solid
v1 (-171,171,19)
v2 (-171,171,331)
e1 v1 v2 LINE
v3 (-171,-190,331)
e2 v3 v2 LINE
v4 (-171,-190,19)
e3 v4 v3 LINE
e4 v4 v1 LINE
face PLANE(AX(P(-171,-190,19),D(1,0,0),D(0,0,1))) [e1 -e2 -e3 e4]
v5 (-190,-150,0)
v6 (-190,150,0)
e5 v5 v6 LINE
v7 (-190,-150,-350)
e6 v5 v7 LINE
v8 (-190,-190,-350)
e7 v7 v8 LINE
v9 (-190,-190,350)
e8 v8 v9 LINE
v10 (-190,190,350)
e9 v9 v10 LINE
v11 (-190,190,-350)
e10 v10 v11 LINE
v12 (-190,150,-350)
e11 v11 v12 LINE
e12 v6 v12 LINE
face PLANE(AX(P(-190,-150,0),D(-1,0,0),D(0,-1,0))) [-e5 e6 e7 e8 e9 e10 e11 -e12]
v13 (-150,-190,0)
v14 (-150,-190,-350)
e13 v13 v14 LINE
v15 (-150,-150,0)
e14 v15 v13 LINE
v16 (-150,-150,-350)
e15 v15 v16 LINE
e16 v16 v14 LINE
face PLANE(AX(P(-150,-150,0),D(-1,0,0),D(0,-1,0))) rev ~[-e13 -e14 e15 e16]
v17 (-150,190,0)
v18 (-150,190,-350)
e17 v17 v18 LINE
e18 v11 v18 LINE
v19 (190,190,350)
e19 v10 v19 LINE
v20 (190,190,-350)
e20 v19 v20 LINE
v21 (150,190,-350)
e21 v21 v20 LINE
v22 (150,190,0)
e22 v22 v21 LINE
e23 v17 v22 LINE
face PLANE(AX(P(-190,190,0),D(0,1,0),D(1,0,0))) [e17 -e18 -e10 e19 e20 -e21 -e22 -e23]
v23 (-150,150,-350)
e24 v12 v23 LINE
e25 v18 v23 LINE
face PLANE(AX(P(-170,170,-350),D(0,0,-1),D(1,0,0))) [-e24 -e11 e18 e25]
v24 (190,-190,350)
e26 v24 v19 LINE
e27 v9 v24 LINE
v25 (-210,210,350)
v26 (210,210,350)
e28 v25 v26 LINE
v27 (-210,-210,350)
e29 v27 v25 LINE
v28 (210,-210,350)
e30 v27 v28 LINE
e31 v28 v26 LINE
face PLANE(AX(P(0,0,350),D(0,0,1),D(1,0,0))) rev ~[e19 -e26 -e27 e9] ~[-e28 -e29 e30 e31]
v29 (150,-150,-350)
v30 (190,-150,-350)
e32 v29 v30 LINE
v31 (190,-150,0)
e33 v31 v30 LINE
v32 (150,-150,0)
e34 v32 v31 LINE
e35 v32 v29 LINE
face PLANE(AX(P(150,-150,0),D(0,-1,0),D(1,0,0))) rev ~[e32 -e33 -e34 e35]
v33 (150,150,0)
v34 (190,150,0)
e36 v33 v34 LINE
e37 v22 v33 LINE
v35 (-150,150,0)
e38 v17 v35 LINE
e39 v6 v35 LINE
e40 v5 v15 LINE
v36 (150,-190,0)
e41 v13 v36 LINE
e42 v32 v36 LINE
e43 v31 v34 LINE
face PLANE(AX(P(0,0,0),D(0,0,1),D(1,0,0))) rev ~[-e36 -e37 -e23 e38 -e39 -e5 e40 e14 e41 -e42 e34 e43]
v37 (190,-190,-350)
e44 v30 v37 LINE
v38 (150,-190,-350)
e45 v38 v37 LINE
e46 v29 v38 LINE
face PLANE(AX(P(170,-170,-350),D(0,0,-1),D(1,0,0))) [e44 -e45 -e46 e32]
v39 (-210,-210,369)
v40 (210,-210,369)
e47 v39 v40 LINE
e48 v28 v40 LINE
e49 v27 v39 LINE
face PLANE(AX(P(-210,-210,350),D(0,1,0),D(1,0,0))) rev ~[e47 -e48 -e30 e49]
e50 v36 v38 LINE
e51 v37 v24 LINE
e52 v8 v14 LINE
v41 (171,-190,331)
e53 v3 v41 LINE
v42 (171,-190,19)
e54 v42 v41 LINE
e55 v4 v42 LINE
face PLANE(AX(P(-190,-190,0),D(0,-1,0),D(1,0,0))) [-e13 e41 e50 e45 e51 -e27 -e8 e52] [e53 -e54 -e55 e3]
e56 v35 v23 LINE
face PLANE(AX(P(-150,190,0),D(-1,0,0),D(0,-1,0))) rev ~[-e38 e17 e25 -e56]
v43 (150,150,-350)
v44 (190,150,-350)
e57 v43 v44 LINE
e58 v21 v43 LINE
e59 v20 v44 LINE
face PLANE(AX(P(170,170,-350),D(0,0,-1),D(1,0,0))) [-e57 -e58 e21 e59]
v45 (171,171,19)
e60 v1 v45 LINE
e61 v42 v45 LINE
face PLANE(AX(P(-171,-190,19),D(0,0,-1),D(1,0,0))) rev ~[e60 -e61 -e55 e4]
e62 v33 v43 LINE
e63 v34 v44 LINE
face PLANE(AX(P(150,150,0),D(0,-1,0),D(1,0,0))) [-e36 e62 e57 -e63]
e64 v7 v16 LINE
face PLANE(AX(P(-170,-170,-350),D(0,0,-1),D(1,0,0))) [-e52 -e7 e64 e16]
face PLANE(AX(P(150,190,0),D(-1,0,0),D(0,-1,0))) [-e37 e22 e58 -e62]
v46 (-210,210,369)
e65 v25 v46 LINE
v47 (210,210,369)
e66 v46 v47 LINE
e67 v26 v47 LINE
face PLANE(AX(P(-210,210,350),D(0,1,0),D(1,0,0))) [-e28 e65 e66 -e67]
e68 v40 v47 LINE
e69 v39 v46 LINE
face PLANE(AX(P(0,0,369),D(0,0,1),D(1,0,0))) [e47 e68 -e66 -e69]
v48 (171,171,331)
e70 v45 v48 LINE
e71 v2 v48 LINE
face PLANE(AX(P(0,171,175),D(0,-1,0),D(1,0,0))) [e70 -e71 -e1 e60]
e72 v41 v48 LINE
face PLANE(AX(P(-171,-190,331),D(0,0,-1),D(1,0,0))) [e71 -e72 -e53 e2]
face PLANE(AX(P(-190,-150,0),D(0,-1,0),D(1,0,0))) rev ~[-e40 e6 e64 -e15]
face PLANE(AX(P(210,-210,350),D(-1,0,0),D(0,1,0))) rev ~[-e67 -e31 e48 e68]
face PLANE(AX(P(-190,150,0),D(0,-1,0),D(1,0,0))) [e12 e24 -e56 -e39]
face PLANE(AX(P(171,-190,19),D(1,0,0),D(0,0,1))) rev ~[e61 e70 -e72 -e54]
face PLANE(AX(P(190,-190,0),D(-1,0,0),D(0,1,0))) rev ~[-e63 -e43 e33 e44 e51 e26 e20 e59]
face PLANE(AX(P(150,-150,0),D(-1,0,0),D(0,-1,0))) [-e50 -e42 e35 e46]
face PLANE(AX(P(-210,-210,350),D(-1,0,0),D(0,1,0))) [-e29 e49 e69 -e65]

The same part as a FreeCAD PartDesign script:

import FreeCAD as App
import Part
import Sketcher

V = App.Vector
Q = App.Units.Quantity


def add_polygon(sketch, points):
    """Adds a closed chain of lines whose ends are joined by coincident constraints."""
    first, n = sketch.GeometryCount, len(points)
    for a, b in zip(points, points[1:] + points[:1]):
        sketch.addGeometry(Part.LineSegment(App.Vector(*a, 0), App.Vector(*b, 0)), False)
    for i in range(n):
        sketch.addConstraint(Sketcher.Constraint("Coincident", first + i, 2, first + (i + 1) % n, 1))

doc = App.newDocument("Part")
params = doc.addObject("Spreadsheet::Sheet", "Params")
for row, (alias, value) in enumerate([
    ("sketch1_width", "380 mm"),
    ("pad1_length", "350 mm"),
    ("sketch2_width", "342 mm"),
    ("sketch2_height", "312 mm"),
    ("pocket1_length", "361 mm"),
    ("sketch3_width", "40 mm"),
    ("pad2_length", "350 mm"),
    ("sketch4_width", "420 mm"),
    ("pad3_length", "19 mm"),
], start=1):
    params.set(f"A{row}", alias)
    params.set(f"B{row}", "=" + value)
    params.setAlias(f"B{row}", alias)

body = doc.addObject("PartDesign::Body", "Body")

# Sketch on XY plane
sketch1 = body.newObject("Sketcher::SketchObject", "Sketch")
sketch1.AttachmentSupport = (doc.getObject("XY_Plane"), [""])
sketch1.MapMode = "FlatFace"
add_polygon(sketch1, [(-190, 190), (-190, -190), (190, -190), (190, 190)])  # lines 0-3
sketch1.addConstraint(Sketcher.Constraint("Vertical", 0))
sketch1.addConstraint(Sketcher.Constraint("Horizontal", 1))
sketch1.addConstraint(Sketcher.Constraint("Vertical", 2))
sketch1.addConstraint(Sketcher.Constraint("Horizontal", 3))
sketch1.addConstraint(Sketcher.Constraint("Symmetric", 0, 2, 2, 2, -1, 1))
sketch1.addConstraint(Sketcher.Constraint("Equal", 3, 0))
sketch1.addConstraint(Sketcher.Constraint("DistanceX", 1, 1, 1, 2, Q("380 mm")))
sketch1.setExpression("Constraints[10]", "Params.sketch1_width")
pad1 = body.newObject("PartDesign::Pad", "Pad")
pad1.Profile = sketch1
pad1.setExpression("Length", "Params.pad1_length")

# Sketch on XZ plane
sketch2 = body.newObject("Sketcher::SketchObject", "Sketch001")
sketch2.AttachmentSupport = (doc.getObject("XZ_Plane"), [""])
sketch2.MapMode = "FlatFace"
sketch2.AttachmentOffset = App.Placement(V(0, 0, 190), App.Rotation())
add_polygon(sketch2, [(-171, 331), (-171, 19), (171, 19), (171, 331)])  # lines 0-3
sketch2.addConstraint(Sketcher.Constraint("Vertical", 0))
sketch2.addConstraint(Sketcher.Constraint("Horizontal", 1))
sketch2.addConstraint(Sketcher.Constraint("Vertical", 2))
sketch2.addConstraint(Sketcher.Constraint("Horizontal", 3))
sketch2.addConstraint(Sketcher.Constraint("DistanceX", 1, 1, 1, 2, Q("342 mm")))
sketch2.addConstraint(Sketcher.Constraint("DistanceY", 0, 2, 0, 1, Q("312 mm")))
sketch2.addConstraint(Sketcher.Constraint("DistanceX", 0, 2, -1, 1, Q("171 mm")))
sketch2.addConstraint(Sketcher.Constraint("DistanceY", -1, 1, 0, 2, Q("19 mm")))
sketch2.setExpression("Constraints[8]", "Params.sketch2_width")
sketch2.setExpression("Constraints[9]", "Params.sketch2_height")
pocket1 = body.newObject("PartDesign::Pocket", "Pocket")
pocket1.Profile = sketch2
pocket1.setExpression("Length", "Params.pocket1_length")

# Sketch on XY plane
sketch3 = body.newObject("Sketcher::SketchObject", "Sketch002")
sketch3.AttachmentSupport = (doc.getObject("XY_Plane"), [""])
sketch3.MapMode = "FlatFace"
add_polygon(sketch3, [(-190, -190), (-190, -150), (-150, -150), (-150, -190)])  # lines 0-3
add_polygon(sketch3, [(150, -190), (150, -150), (190, -150), (190, -190)])  # lines 4-7
add_polygon(sketch3, [(150, 150), (150, 190), (190, 190), (190, 150)])  # lines 8-11
add_polygon(sketch3, [(-190, 150), (-190, 190), (-150, 190), (-150, 150)])  # lines 12-15
sketch3.addConstraint(Sketcher.Constraint("Vertical", 0))
sketch3.addConstraint(Sketcher.Constraint("Horizontal", 1))
sketch3.addConstraint(Sketcher.Constraint("Vertical", 2))
sketch3.addConstraint(Sketcher.Constraint("Horizontal", 3))
sketch3.addConstraint(Sketcher.Constraint("Vertical", 4))
sketch3.addConstraint(Sketcher.Constraint("Horizontal", 5))
sketch3.addConstraint(Sketcher.Constraint("Vertical", 6))
sketch3.addConstraint(Sketcher.Constraint("Horizontal", 7))
sketch3.addConstraint(Sketcher.Constraint("Vertical", 8))
sketch3.addConstraint(Sketcher.Constraint("Horizontal", 9))
sketch3.addConstraint(Sketcher.Constraint("Vertical", 10))
sketch3.addConstraint(Sketcher.Constraint("Horizontal", 11))
sketch3.addConstraint(Sketcher.Constraint("Vertical", 12))
sketch3.addConstraint(Sketcher.Constraint("Horizontal", 13))
sketch3.addConstraint(Sketcher.Constraint("Vertical", 14))
sketch3.addConstraint(Sketcher.Constraint("Horizontal", 15))
sketch3.addConstraint(Sketcher.Constraint("Symmetric", 2, 2, 8, 2, -1, 1))
sketch3.addConstraint(Sketcher.Constraint("Symmetric", 0, 2, 10, 2, -1, 1))
sketch3.addConstraint(Sketcher.Constraint("Symmetric", 6, 2, 12, 2, -1, 1))
sketch3.addConstraint(Sketcher.Constraint("Symmetric", 4, 2, 14, 2, -1, 1))
sketch3.addConstraint(Sketcher.Constraint("Symmetric", 1, 2, 4, 2, -2))
sketch3.addConstraint(Sketcher.Constraint("Symmetric", 3, 2, 6, 2, -2))
sketch3.addConstraint(Sketcher.Constraint("Equal", 15, 0))
sketch3.addConstraint(Sketcher.Constraint("DistanceX", 1, 1, 1, 2, Q("40 mm")))
sketch3.addConstraint(Sketcher.Constraint("DistanceX", 0, 2, -1, 1, Q("190 mm")))
sketch3.addConstraint(Sketcher.Constraint("DistanceY", 0, 2, -1, 1, Q("150 mm")))
sketch3.setExpression("Constraints[39]", "Params.sketch3_width")
pad2 = body.newObject("PartDesign::Pad", "Pad001")
pad2.Profile = sketch3
pad2.setExpression("Length", "Params.pad2_length")
pad2.Reversed = True

# Sketch on XY plane
sketch4 = body.newObject("Sketcher::SketchObject", "Sketch003")
sketch4.AttachmentSupport = (doc.getObject("XY_Plane"), [""])
sketch4.MapMode = "FlatFace"
sketch4.AttachmentOffset = App.Placement(V(0, 0, 350), App.Rotation())
add_polygon(sketch4, [(-210, 210), (-210, -210), (210, -210), (210, 210)])  # lines 0-3
sketch4.addConstraint(Sketcher.Constraint("Vertical", 0))
sketch4.addConstraint(Sketcher.Constraint("Horizontal", 1))
sketch4.addConstraint(Sketcher.Constraint("Vertical", 2))
sketch4.addConstraint(Sketcher.Constraint("Horizontal", 3))
sketch4.addConstraint(Sketcher.Constraint("Symmetric", 0, 2, 2, 2, -1, 1))
sketch4.addConstraint(Sketcher.Constraint("Equal", 3, 0))
sketch4.addConstraint(Sketcher.Constraint("DistanceX", 1, 1, 1, 2, Q("420 mm")))
sketch4.setExpression("Constraints[10]", "Params.sketch4_width")
pad3 = body.newObject("PartDesign::Pad", "Pad002")
pad3.Profile = sketch4
pad3.setExpression("Length", "Params.pad3_length")

doc.recompute()
